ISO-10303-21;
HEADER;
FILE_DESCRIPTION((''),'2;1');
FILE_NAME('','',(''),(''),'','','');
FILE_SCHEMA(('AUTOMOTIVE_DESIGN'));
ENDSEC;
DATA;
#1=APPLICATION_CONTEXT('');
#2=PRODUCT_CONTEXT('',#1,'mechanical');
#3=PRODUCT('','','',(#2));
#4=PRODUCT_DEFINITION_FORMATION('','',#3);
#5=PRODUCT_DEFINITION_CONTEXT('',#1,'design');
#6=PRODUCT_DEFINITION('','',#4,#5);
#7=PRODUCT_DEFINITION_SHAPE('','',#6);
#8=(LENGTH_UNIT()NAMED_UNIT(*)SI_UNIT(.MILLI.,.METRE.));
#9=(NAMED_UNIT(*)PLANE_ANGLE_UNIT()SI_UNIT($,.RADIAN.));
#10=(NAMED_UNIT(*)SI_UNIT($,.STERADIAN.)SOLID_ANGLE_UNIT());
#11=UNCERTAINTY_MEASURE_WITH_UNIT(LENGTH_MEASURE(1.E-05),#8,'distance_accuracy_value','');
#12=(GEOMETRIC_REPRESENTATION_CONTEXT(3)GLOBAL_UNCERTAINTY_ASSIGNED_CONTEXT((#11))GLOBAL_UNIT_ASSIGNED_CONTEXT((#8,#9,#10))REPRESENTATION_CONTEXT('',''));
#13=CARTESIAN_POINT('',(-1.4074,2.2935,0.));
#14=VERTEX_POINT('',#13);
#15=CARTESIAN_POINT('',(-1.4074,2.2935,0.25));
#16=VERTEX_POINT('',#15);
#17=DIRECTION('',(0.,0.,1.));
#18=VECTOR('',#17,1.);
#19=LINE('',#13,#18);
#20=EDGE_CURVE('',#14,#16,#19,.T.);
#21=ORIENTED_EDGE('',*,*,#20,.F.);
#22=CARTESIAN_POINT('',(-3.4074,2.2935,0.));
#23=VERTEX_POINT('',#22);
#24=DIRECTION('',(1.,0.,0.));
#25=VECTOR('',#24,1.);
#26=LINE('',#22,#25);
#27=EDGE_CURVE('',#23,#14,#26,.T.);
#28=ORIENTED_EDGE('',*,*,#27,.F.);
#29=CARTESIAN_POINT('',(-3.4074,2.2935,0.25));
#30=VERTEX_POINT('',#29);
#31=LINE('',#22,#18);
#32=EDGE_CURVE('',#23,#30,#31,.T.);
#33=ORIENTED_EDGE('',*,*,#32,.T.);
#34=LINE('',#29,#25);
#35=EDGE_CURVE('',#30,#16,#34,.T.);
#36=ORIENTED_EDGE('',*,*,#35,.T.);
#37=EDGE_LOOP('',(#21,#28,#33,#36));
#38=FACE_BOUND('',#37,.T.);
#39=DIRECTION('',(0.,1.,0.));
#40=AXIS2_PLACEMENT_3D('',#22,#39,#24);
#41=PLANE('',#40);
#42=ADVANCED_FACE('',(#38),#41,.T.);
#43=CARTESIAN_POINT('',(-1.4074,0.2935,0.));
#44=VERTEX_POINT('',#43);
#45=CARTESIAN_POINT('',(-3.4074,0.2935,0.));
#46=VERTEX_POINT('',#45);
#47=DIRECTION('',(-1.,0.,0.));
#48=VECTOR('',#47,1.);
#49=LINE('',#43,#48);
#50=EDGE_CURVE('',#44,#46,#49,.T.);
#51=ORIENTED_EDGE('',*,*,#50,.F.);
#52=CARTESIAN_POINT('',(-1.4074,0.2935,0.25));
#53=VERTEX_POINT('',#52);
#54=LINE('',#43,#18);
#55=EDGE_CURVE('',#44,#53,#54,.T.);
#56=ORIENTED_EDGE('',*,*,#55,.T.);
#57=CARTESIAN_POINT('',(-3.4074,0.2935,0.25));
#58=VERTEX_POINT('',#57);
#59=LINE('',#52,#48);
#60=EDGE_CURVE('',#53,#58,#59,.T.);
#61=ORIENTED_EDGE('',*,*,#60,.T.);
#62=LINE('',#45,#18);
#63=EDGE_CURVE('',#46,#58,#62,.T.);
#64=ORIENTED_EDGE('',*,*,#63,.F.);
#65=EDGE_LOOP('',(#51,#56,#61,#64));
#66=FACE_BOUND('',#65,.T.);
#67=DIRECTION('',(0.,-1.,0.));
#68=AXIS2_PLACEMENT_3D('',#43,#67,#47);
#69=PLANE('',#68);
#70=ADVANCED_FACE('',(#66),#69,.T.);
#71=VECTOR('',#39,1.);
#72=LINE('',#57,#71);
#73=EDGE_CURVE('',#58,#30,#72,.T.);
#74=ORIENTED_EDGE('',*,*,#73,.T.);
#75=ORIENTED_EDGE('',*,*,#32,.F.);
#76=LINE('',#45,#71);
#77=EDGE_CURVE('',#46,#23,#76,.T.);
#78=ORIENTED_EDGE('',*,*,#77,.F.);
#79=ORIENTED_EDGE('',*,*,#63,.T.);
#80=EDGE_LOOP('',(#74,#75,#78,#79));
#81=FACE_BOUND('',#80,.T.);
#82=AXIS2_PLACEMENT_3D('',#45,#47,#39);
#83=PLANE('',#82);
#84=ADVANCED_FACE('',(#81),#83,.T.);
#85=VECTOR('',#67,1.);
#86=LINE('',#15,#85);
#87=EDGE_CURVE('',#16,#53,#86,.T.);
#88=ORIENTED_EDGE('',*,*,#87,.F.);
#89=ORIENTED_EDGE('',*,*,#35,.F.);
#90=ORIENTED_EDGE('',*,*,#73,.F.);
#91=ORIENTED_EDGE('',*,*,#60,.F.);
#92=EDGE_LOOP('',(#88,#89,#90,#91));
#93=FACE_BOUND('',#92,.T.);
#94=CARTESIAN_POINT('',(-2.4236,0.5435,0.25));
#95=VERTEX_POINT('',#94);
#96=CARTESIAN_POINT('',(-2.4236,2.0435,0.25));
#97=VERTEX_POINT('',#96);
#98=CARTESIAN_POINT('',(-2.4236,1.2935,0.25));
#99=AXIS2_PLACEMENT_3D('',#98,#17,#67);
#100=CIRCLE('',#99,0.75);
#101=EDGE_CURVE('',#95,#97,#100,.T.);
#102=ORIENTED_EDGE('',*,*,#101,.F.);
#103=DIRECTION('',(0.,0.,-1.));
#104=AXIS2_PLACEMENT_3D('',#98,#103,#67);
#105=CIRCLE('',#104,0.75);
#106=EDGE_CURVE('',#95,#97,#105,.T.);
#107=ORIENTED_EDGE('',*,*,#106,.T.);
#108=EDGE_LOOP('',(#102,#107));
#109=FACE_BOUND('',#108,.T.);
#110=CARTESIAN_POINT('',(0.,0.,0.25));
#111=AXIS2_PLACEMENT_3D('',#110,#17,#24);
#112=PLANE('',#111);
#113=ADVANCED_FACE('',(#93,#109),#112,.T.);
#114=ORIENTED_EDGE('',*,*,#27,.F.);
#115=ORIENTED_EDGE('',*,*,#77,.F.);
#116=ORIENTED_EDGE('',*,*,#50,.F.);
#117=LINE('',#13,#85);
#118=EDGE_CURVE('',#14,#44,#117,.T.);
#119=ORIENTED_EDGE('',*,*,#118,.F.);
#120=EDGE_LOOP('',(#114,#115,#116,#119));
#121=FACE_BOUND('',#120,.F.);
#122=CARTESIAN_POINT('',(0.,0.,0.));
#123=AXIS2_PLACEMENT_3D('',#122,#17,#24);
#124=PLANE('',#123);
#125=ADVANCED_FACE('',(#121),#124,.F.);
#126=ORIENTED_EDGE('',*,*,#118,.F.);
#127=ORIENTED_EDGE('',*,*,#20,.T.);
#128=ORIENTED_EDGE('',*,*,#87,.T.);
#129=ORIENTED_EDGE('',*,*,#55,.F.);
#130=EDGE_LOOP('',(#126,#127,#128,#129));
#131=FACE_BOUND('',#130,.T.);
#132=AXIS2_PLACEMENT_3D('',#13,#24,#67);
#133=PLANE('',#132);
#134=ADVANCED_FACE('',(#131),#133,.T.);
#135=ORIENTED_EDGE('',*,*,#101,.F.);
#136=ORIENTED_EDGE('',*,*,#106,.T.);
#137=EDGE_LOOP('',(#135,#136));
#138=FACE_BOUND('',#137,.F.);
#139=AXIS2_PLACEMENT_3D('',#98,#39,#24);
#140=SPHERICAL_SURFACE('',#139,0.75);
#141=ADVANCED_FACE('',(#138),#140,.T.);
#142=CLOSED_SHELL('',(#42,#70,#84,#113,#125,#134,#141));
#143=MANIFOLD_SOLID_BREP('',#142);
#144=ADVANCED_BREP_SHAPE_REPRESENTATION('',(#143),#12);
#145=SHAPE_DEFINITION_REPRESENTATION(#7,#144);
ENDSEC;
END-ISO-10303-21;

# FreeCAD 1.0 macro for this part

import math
import FreeCAD as App
import Part
import Sketcher
from FreeCAD import Vector
Q = App.Units.Quantity


def add_polygon(sketch, points):
    """Adds a closed chain of lines whose ends are joined by coincident constraints."""
    first, n = sketch.GeometryCount, len(points)
    for a, b in zip(points, points[1:] + points[:1]):
        sketch.addGeometry(Part.LineSegment(App.Vector(*a, 0), App.Vector(*b, 0)), False)
    for i in range(n):
        sketch.addConstraint(Sketcher.Constraint("Coincident", first + i, 2, first + (i + 1) % n, 1))

doc = App.newDocument("Part")
body = doc.addObject("PartDesign::Body", "Body")

# Sketch on XY plane
sketch1 = body.newObject("Sketcher::SketchObject", "Sketch")
sketch1.AttachmentSupport = (doc.getObject("XY_Plane"), [""])
sketch1.MapMode = "FlatFace"
add_polygon(sketch1, [(-1.4074, 2.2935), (-3.4074, 2.2935), (-3.4074, 0.2935), (-1.4074, 0.2935)])  # lines 0-3
sketch1.addConstraint(Sketcher.Constraint("Horizontal", 0))
sketch1.addConstraint(Sketcher.Constraint("Vertical", 1))
sketch1.addConstraint(Sketcher.Constraint("Horizontal", 2))
sketch1.addConstraint(Sketcher.Constraint("Vertical", 3))
sketch1.addConstraint(Sketcher.Constraint("Equal", 2, 1))
sketch1.addConstraint(Sketcher.Constraint("DistanceX", 0, 2, 0, 1, Q("2 mm")))
sketch1.addConstraint(Sketcher.Constraint("DistanceX", 0, 2, -1, 1, Q("3.4074 mm")))
sketch1.addConstraint(Sketcher.Constraint("DistanceY", -1, 1, 0, 2, Q("2.2935 mm")))
pad1 = body.newObject("PartDesign::Pad", "Pad")
pad1.Profile = sketch1
pad1.Length = 0.25

# Sketch on XY plane
sketch2 = body.newObject("Sketcher::SketchObject", "Sketch001")
sketch2.AttachmentSupport = (doc.getObject("XY_Plane"), [""])
sketch2.MapMode = "FlatFace"
sketch2.AttachmentOffset = App.Placement(Vector(0, 0, 0.25), App.Rotation())
sketch2.addGeometry(Part.LineSegment(Vector(-2.4236, 2.0435, 0), Vector(-2.4236, 0.5435, 0)), False)
sketch2.addGeometry(Part.ArcOfCircle(Part.Circle(Vector(-2.4236, 1.2935, 0), Vector(0, 0, 1), 0.75), math.radians(-90), math.radians(90)), False)
sketch2.addGeometry(Part.LineSegment(Vector(-2.4236, 2.0435, 0), Vector(-2.4236, 0.5435, 0)), True)  # axis
sketch2.addConstraint(Sketcher.Constraint("Coincident", 0, 1, 1, 2))
sketch2.addConstraint(Sketcher.Constraint("Coincident", 1, 1, 0, 2))
sketch2.addConstraint(Sketcher.Constraint("Vertical", 0))
sketch2.addConstraint(Sketcher.Constraint("Vertical", 2))
sketch2.addConstraint(Sketcher.Constraint("Coincident", 2, 1, 0, 1))
sketch2.addConstraint(Sketcher.Constraint("Vertical", 1, 3, 0, 1))
sketch2.addConstraint(Sketcher.Constraint("Equal", 0, 2))
sketch2.addConstraint(Sketcher.Constraint("Radius", 1, Q("0.75 mm")))
sketch2.addConstraint(Sketcher.Constraint("DistanceX", 1, 3, -1, 1, Q("2.4236 mm")))
sketch2.addConstraint(Sketcher.Constraint("DistanceY", -1, 1, 1, 3, Q("1.2935 mm")))
revolution = body.newObject("PartDesign::Revolution", "Revolution")
revolution.Profile = sketch2
revolution.ReferenceAxis = (sketch2, ["Axis0"])
revolution.Angle = 180

doc.recompute()
